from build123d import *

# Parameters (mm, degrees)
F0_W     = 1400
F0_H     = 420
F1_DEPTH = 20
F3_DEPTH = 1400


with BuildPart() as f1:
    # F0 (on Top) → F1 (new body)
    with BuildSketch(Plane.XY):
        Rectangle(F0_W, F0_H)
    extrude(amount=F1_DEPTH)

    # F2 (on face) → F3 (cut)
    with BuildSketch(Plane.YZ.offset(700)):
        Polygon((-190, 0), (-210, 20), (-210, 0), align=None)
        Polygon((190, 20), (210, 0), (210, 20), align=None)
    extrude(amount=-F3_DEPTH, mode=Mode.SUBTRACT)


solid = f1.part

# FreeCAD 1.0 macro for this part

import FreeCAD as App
import Part
import Sketcher
from FreeCAD import Vector
Q = App.Units.Quantity

doc = App.newDocument("Part")
body = doc.addObject("PartDesign::Body", "Body")

# Sketch on XY plane
sketch1 = body.newObject("Sketcher::SketchObject", "Sketch")
sketch1.AttachmentSupport = (doc.getObject("XY_Plane"), [""])
sketch1.MapMode = "FlatFace"
sketch1.addGeometry([
    Part.LineSegment(Vector(-700, 210, 0), Vector(-700, -210, 0)),
    Part.LineSegment(Vector(-700, -210, 0), Vector(700, -210, 0)),
    Part.LineSegment(Vector(700, -210, 0), Vector(700, 210, 0)),
    Part.LineSegment(Vector(700, 210, 0), Vector(-700, 210, 0)),
], False)
sketch1.addConstraint([
    Sketcher.Constraint("Coincident", 0, 2, 1, 1),
    Sketcher.Constraint("Coincident", 1, 2, 2, 1),
    Sketcher.Constraint("Coincident", 2, 2, 3, 1),
    Sketcher.Constraint("Coincident", 3, 2, 0, 1),
    Sketcher.Constraint("Vertical", 0),
    Sketcher.Constraint("Horizontal", 1),
    Sketcher.Constraint("Vertical", 2),
    Sketcher.Constraint("Horizontal", 3),
    Sketcher.Constraint("Symmetric", 0, 2, 2, 2, -1, 1),
    Sketcher.Constraint("DistanceX", 1, 1, 1, 2, Q("1400 mm")),
    Sketcher.Constraint("DistanceY", 0, 2, 0, 1, Q("420 mm")),
])
pad1 = body.newObject("PartDesign::Pad", "Pad")
pad1.Profile = sketch1
pad1.Length = 20

# Sketch on YZ plane
sketch2 = body.newObject("Sketcher::SketchObject", "Sketch001")
sketch2.AttachmentSupport = (doc.getObject("YZ_Plane"), [""])
sketch2.MapMode = "FlatFace"
sketch2.AttachmentOffset = App.Placement(Vector(0, 0, 700), App.Rotation())
sketch2.addGeometry([
    Part.LineSegment(Vector(-190, 0, 0), Vector(-210, 20, 0)),  # 0
    Part.LineSegment(Vector(-210, 20, 0), Vector(-210, 0, 0)),  # 1
    Part.LineSegment(Vector(-210, 0, 0), Vector(-190, 0, 0)),  # 2
    Part.LineSegment(Vector(190, 20, 0), Vector(210, 0, 0)),  # 3
    Part.LineSegment(Vector(210, 0, 0), Vector(210, 20, 0)),  # 4
    Part.LineSegment(Vector(210, 20, 0), Vector(190, 20, 0)),  # 5
], False)
sketch2.addConstraint([
    Sketcher.Constraint("Coincident", 0, 2, 1, 1),
    Sketcher.Constraint("Coincident", 1, 2, 2, 1),
    Sketcher.Constraint("Coincident", 2, 2, 0, 1),
    Sketcher.Constraint("Coincident", 3, 2, 4, 1),
    Sketcher.Constraint("Coincident", 4, 2, 5, 1),
    Sketcher.Constraint("Coincident", 5, 2, 3, 1),
    Sketcher.Constraint("Vertical", 1),
    Sketcher.Constraint("Horizontal", 2),
    Sketcher.Constraint("Vertical", 4),
    Sketcher.Constraint("Horizontal", 5),
    Sketcher.Constraint("Symmetric", 1, 2, 3, 2, -1, 1),
    Sketcher.Constraint("PointOnObject", 1, 2, -1),
    Sketcher.Constraint("Parallel", 0, 3),
    Sketcher.Constraint("Horizontal", 0, 2, 4, 2),
    Sketcher.Constraint("Equal", 5, 1),
    Sketcher.Constraint("DistanceX", 2, 1, 2, 2, Q("20 mm")),
    Sketcher.Constraint("DistanceX", 0, 2, -1, 1, Q("210 mm")),
])
pocket1 = body.newObject("PartDesign::Pocket", "Pocket")
pocket1.Profile = sketch2
pocket1.Length = 1400

doc.recompute()
